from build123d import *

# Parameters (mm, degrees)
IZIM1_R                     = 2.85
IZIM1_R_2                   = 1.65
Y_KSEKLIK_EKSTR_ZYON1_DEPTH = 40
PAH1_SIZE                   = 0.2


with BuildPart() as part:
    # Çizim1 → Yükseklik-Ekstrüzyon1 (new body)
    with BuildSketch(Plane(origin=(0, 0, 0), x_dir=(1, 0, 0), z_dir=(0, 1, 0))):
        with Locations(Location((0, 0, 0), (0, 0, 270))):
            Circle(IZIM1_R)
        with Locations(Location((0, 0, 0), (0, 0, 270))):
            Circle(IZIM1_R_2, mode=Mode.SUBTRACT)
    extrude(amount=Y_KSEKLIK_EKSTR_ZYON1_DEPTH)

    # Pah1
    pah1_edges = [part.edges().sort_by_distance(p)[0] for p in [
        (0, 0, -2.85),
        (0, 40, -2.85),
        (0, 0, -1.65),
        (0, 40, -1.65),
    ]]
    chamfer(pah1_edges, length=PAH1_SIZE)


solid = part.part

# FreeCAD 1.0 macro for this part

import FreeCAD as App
import Part
import Sketcher
from FreeCAD import Vector


def edges_at(feature, points):
    """Names of the edges that pass closest to the given points."""
    edges = feature.Shape.Edges
    near = lambda p: min(range(len(edges)), key=lambda i: edges[i].distToShape(Part.Vertex(*p))[0])
    return sorted({f"Edge{near(p) + 1}" for p in points})

doc = App.newDocument("Part")
body = doc.addObject("PartDesign::Body", "Body")

# Sketch on XZ plane
sketch1 = body.newObject("Sketcher::SketchObject", "Sketch")
sketch1.AttachmentSupport = (doc.getObject("XZ_Plane"), [""])
sketch1.MapMode = "FlatFace"
sketch1.addGeometry(Part.Circle(Vector(0, 0, 0), Vector(0, 0, 1), 2.9), False)
sketch1.addGeometry(Part.Circle(Vector(0, 0, 0), Vector(0, 0, 1), 1.6), False)
sketch1.addConstraint(Sketcher.Constraint("Coincident", 0, 3, -1, 1))
sketch1.addConstraint(Sketcher.Constraint("Coincident", 1, 3, -1, 1))
sketch1.addConstraint(Sketcher.Constraint("Diameter", 0, 5.7))
sketch1.addConstraint(Sketcher.Constraint("Diameter", 1, 3.3))
pad1 = body.newObject("PartDesign::Pad", "Pad")
pad1.Profile = sketch1
pad1.Length = 40
pad1.Reversed = True
doc.recompute()

chamfer = body.newObject("PartDesign::Chamfer", "Chamfer")
chamfer.Base = (pad1, edges_at(pad1, [
    (0, 0, -2.85),
    (0, 40, -2.85),
    (0, 0, -1.65),
    (0, 40, -1.65),
]))
chamfer.Size = 0.2

doc.recompute()
